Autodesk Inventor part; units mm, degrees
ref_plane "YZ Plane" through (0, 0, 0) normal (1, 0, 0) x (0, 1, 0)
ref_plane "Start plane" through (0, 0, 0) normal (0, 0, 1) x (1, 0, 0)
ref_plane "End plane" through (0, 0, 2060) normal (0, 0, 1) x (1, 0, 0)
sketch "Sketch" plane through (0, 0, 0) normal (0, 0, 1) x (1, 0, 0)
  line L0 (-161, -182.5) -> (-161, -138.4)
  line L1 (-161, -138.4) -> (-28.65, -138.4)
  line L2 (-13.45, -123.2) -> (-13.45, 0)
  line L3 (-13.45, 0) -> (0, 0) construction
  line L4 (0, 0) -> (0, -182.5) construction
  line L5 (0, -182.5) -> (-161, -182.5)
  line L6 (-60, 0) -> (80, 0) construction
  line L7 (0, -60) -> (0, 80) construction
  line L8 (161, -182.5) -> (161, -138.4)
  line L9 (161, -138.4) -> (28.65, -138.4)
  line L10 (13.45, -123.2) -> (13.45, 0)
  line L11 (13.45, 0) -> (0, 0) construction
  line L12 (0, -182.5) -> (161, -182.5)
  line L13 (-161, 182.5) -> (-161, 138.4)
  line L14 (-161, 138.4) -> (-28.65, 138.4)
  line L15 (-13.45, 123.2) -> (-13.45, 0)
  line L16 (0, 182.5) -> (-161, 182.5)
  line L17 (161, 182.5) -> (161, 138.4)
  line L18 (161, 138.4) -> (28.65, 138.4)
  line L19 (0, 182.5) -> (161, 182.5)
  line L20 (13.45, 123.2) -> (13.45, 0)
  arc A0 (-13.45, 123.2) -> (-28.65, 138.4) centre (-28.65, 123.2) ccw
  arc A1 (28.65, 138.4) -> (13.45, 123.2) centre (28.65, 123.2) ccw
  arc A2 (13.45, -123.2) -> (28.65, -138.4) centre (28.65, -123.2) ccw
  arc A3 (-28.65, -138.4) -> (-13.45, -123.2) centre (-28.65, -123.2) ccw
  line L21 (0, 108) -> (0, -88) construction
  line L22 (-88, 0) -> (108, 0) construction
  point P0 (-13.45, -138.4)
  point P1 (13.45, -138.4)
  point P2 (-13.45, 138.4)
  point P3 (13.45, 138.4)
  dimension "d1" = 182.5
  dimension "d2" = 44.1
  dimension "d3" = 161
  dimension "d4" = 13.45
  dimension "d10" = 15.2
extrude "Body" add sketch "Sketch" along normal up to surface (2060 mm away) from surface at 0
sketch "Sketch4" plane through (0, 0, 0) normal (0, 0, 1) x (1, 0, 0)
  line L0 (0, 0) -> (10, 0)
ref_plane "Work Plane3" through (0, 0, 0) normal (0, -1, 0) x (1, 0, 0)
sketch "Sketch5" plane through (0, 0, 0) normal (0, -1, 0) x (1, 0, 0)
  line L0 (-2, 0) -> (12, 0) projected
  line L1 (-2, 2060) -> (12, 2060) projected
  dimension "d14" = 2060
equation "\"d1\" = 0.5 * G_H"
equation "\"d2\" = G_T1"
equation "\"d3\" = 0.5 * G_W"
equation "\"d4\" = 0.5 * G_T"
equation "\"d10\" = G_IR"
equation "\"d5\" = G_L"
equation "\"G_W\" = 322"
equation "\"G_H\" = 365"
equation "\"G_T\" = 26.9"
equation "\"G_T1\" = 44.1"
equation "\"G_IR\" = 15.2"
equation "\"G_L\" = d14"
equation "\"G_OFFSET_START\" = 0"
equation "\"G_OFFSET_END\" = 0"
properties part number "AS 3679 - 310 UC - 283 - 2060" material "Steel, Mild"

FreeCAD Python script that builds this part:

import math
import FreeCAD as App
import Part
import Sketcher
from FreeCAD import Vector
Q = App.Units.Quantity

doc = App.newDocument("Part")
body = doc.addObject("PartDesign::Body", "Body")

sketch1 = body.newObject("Sketcher::SketchObject", "Sketch")
sketch1.AttachmentSupport = (doc.getObject("XY_Plane"), [""])
sketch1.MapMode = "FlatFace"
sketch1.addGeometry(Part.LineSegment(Vector(-161, -138, 0), Vector(-161, -182, 0)), False)
sketch1.addGeometry(Part.LineSegment(Vector(-161, -182, 0), Vector(161, -182, 0)), False)
sketch1.addGeometry(Part.LineSegment(Vector(161, -182, 0), Vector(161, -138, 0)), False)
sketch1.addGeometry(Part.LineSegment(Vector(161, -138, 0), Vector(29, -138, 0)), False)
sketch1.addGeometry(Part.ArcOfCircle(Part.Circle(Vector(29, -123, 0), Vector(0, 0, 1), 15), math.radians(180), math.radians(270)), False)
sketch1.addGeometry(Part.LineSegment(Vector(13, -123, 0), Vector(13, 123, 0)), False)
sketch1.addGeometry(Part.ArcOfCircle(Part.Circle(Vector(29, 123, 0), Vector(0, 0, 1), 15), math.radians(90), math.radians(180)), False)
sketch1.addGeometry(Part.LineSegment(Vector(29, 138, 0), Vector(161, 138, 0)), False)
sketch1.addGeometry(Part.LineSegment(Vector(161, 138, 0), Vector(161, 182, 0)), False)
sketch1.addGeometry(Part.LineSegment(Vector(161, 182, 0), Vector(-161, 182, 0)), False)
sketch1.addGeometry(Part.LineSegment(Vector(-161, 182, 0), Vector(-161, 138, 0)), False)
sketch1.addGeometry(Part.LineSegment(Vector(-161, 138, 0), Vector(-29, 138, 0)), False)
sketch1.addGeometry(Part.ArcOfCircle(Part.Circle(Vector(-29, 123, 0), Vector(0, 0, 1), 15), math.radians(0), math.radians(90)), False)
sketch1.addGeometry(Part.LineSegment(Vector(-13, 123, 0), Vector(-13, -123, 0)), False)
sketch1.addGeometry(Part.ArcOfCircle(Part.Circle(Vector(-29, -123, 0), Vector(0, 0, 1), 15), math.radians(-90), math.radians(0)), False)
sketch1.addGeometry(Part.LineSegment(Vector(-29, -138, 0), Vector(-161, -138, 0)), False)
sketch1.addConstraint(Sketcher.Constraint("Coincident", 0, 2, 1, 1))
sketch1.addConstraint(Sketcher.Constraint("Coincident", 1, 2, 2, 1))
sketch1.addConstraint(Sketcher.Constraint("Coincident", 2, 2, 3, 1))
sketch1.addConstraint(Sketcher.Constraint("Tangent", 3, 2, 4, 2))
sketch1.addConstraint(Sketcher.Constraint("Tangent", 4, 1, 5, 1))
sketch1.addConstraint(Sketcher.Constraint("Tangent", 5, 2, 6, 2))
sketch1.addConstraint(Sketcher.Constraint("Tangent", 6, 1, 7, 1))
sketch1.addConstraint(Sketcher.Constraint("Coincident", 7, 2, 8, 1))
sketch1.addConstraint(Sketcher.Constraint("Coincident", 8, 2, 9, 1))
sketch1.addConstraint(Sketcher.Constraint("Coincident", 9, 2, 10, 1))
sketch1.addConstraint(Sketcher.Constraint("Coincident", 10, 2, 11, 1))
sketch1.addConstraint(Sketcher.Constraint("Tangent", 11, 2, 12, 2))
sketch1.addConstraint(Sketcher.Constraint("Tangent", 12, 1, 13, 1))
sketch1.addConstraint(Sketcher.Constraint("Tangent", 13, 2, 14, 2))
sketch1.addConstraint(Sketcher.Constraint("Tangent", 14, 1, 15, 1))
sketch1.addConstraint(Sketcher.Constraint("Coincident", 15, 2, 0, 1))
sketch1.addConstraint(Sketcher.Constraint("Vertical", 0))
sketch1.addConstraint(Sketcher.Constraint("Horizontal", 1))
sketch1.addConstraint(Sketcher.Constraint("Vertical", 2))
sketch1.addConstraint(Sketcher.Constraint("Horizontal", 3))
sketch1.addConstraint(Sketcher.Constraint("Vertical", 5))
sketch1.addConstraint(Sketcher.Constraint("Horizontal", 7))
sketch1.addConstraint(Sketcher.Constraint("Vertical", 8))
sketch1.addConstraint(Sketcher.Constraint("Horizontal", 9))
sketch1.addConstraint(Sketcher.Constraint("Vertical", 10))
sketch1.addConstraint(Sketcher.Constraint("Horizontal", 11))
sketch1.addConstraint(Sketcher.Constraint("Vertical", 13))
sketch1.addConstraint(Sketcher.Constraint("Horizontal", 15))
sketch1.addConstraint(Sketcher.Constraint("Equal", 4, 6))
sketch1.addConstraint(Sketcher.Constraint("Equal", 6, 12))
sketch1.addConstraint(Sketcher.Constraint("Equal", 12, 14))
sketch1.addConstraint(Sketcher.Constraint("Symmetric", 4, 3, 12, 3, -1, 1))
sketch1.addConstraint(Sketcher.Constraint("Symmetric", 0, 2, 8, 2, -1, 1))
sketch1.addConstraint(Sketcher.Constraint("Symmetric", 7, 2, 10, 2, -2))
sketch1.addConstraint(Sketcher.Constraint("Symmetric", 2, 2, 15, 2, -2))
sketch1.addConstraint(Sketcher.Constraint("Radius", 4, Q("15.2 mm")))
sketch1.addConstraint(Sketcher.Constraint("DistanceY", 0, 2, 0, 1, Q("44.1 mm")))
sketch1.addConstraint(Sketcher.Constraint("DistanceX", 0, 2, -1, 1, Q("161 mm")))
sketch1.addConstraint(Sketcher.Constraint("DistanceY", 0, 2, -1, 1, Q("182.5 mm")))
sketch1.addConstraint(Sketcher.Constraint("DistanceX", -1, 1, 4, 1, Q("13.45 mm")))
pad1 = body.newObject("PartDesign::Pad", "Pad")
pad1.Profile = sketch1
pad1.Length = 2060

doc.recompute()
